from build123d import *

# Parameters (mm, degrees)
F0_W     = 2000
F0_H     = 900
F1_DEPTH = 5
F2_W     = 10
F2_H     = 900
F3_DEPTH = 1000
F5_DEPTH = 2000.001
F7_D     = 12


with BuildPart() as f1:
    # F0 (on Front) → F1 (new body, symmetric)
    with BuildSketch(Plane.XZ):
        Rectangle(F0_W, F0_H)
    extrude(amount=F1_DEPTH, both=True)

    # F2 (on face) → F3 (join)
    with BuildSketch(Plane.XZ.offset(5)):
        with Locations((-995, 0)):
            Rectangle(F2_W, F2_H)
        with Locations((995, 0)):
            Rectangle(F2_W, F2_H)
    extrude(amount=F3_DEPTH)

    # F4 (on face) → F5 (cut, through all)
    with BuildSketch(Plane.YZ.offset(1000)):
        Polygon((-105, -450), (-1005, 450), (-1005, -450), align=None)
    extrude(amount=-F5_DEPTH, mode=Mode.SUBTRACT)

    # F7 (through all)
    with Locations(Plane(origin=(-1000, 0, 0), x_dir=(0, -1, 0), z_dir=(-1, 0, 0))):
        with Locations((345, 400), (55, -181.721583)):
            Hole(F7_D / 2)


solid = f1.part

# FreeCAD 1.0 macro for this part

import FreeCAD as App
import Part
import Sketcher

doc = App.newDocument("Part")
body = doc.addObject("PartDesign::Body", "Body")

# Sketch on XZ plane
sketch1 = body.newObject("Sketcher::SketchObject", "Sketch")
sketch1.AttachmentSupport = (doc.getObject("XZ_Plane"), [""])
sketch1.MapMode = "FlatFace"
sketch1.addGeometry([
    Part.LineSegment(App.Vector(-1000, 450, 0), App.Vector(-1000, -450, 0)),
    Part.LineSegment(App.Vector(-1000, -450, 0), App.Vector(1000, -450, 0)),
    Part.LineSegment(App.Vector(1000, -450, 0), App.Vector(1000, 450, 0)),
    Part.LineSegment(App.Vector(1000, 450, 0), App.Vector(-1000, 450, 0)),
], False)
sketch1.addConstraint([
    Sketcher.Constraint("Coincident", 0, 2, 1, 1),
    Sketcher.Constraint("Coincident", 1, 2, 2, 1),
    Sketcher.Constraint("Coincident", 2, 2, 3, 1),
    Sketcher.Constraint("Coincident", 3, 2, 0, 1),
    Sketcher.Constraint("Vertical", 0),
    Sketcher.Constraint("Horizontal", 1),
    Sketcher.Constraint("Vertical", 2),
    Sketcher.Constraint("Horizontal", 3),
    Sketcher.Constraint("Symmetric", 0, 2, 2, 2, -1, 1),
    Sketcher.Constraint("DistanceX", 1, 1, 1, 2, 2000.0),
    Sketcher.Constraint("DistanceY", 0, 2, 0, 1, 900.0),
])
pad1 = body.newObject("PartDesign::Pad", "Pad")
pad1.Profile = sketch1
pad1.Length = 10
pad1.Midplane = True

# Sketch on XZ plane
sketch2 = body.newObject("Sketcher::SketchObject", "Sketch001")
sketch2.AttachmentSupport = (doc.getObject("XZ_Plane"), [""])
sketch2.MapMode = "FlatFace"
sketch2.AttachmentOffset = App.Placement(App.Vector(0, 0, 5), App.Rotation())
sketch2.addGeometry([
    Part.LineSegment(App.Vector(-1000, 450, 0), App.Vector(-1000, -450, 0)),  # 0
    Part.LineSegment(App.Vector(-1000, -450, 0), App.Vector(-990, -450, 0)),  # 1
    Part.LineSegment(App.Vector(-990, -450, 0), App.Vector(-990, 450, 0)),  # 2
    Part.LineSegment(App.Vector(-990, 450, 0), App.Vector(-1000, 450, 0)),  # 3
    Part.LineSegment(App.Vector(990, 450, 0), App.Vector(990, -450, 0)),  # 4
    Part.LineSegment(App.Vector(990, -450, 0), App.Vector(1000, -450, 0)),  # 5
    Part.LineSegment(App.Vector(1000, -450, 0), App.Vector(1000, 450, 0)),  # 6
    Part.LineSegment(App.Vector(1000, 450, 0), App.Vector(990, 450, 0)),  # 7
], False)
sketch2.addConstraint([
    Sketcher.Constraint("Coincident", 0, 2, 1, 1),
    Sketcher.Constraint("Coincident", 1, 2, 2, 1),
    Sketcher.Constraint("Coincident", 2, 2, 3, 1),
    Sketcher.Constraint("Coincident", 3, 2, 0, 1),
    Sketcher.Constraint("Coincident", 4, 2, 5, 1),
    Sketcher.Constraint("Coincident", 5, 2, 6, 1),
    Sketcher.Constraint("Coincident", 6, 2, 7, 1),
    Sketcher.Constraint("Coincident", 7, 2, 4, 1),
    Sketcher.Constraint("Vertical", 0),
    Sketcher.Constraint("Horizontal", 1),
    Sketcher.Constraint("Vertical", 2),
    Sketcher.Constraint("Horizontal", 3),
    Sketcher.Constraint("Vertical", 4),
    Sketcher.Constraint("Horizontal", 5),
    Sketcher.Constraint("Vertical", 6),
    Sketcher.Constraint("Horizontal", 7),
    Sketcher.Constraint("Symmetric", 2, 2, 4, 2, -1, 1),
    Sketcher.Constraint("Symmetric", 0, 2, 6, 2, -1, 1),
    Sketcher.Constraint("Horizontal", 1, 2, 4, 2),
    Sketcher.Constraint("DistanceX", 1, 1, 1, 2, 10.0),
    Sketcher.Constraint("DistanceY", 0, 2, 0, 1, 900.0),
    Sketcher.Constraint("DistanceX", 0, 2, -1, 1, 1000.0),
])
pad2 = body.newObject("PartDesign::Pad", "Pad001")
pad2.Profile = sketch2
pad2.Length = 1000

# Sketch on YZ plane
sketch3 = body.newObject("Sketcher::SketchObject", "Sketch002")
sketch3.AttachmentSupport = (doc.getObject("YZ_Plane"), [""])
sketch3.MapMode = "FlatFace"
sketch3.AttachmentOffset = App.Placement(App.Vector(0, 0, 1000), App.Rotation())
sketch3.addGeometry([
    Part.LineSegment(App.Vector(-105, -450, 0), App.Vector(-1005, 450, 0)),
    Part.LineSegment(App.Vector(-1005, 450, 0), App.Vector(-1005, -450, 0)),
    Part.LineSegment(App.Vector(-1005, -450, 0), App.Vector(-105, -450, 0)),
], False)
sketch3.addConstraint([
    Sketcher.Constraint("Coincident", 0, 2, 1, 1),
    Sketcher.Constraint("Coincident", 1, 2, 2, 1),
    Sketcher.Constraint("Coincident", 2, 2, 0, 1),
    Sketcher.Constraint("Vertical", 1),
    Sketcher.Constraint("Horizontal", 2),
    Sketcher.Constraint("Equal", 2, 1),
    Sketcher.Constraint("DistanceX", 2, 1, 2, 2, 900.0),
    Sketcher.Constraint("DistanceX", 0, 2, -1, 1, 1005.0),
    Sketcher.Constraint("DistanceY", -1, 1, 0, 2, 450.0),
])
pocket1 = body.newObject("PartDesign::Pocket", "Pocket")
pocket1.Profile = sketch3
pocket1.Type = "ThroughAll"

# Sketch on YZ plane
sketch4 = body.newObject("Sketcher::SketchObject", "Sketch003")
sketch4.AttachmentSupport = (doc.getObject("YZ_Plane"), [""])
sketch4.MapMode = "FlatFace"
sketch4.AttachmentOffset = App.Placement(App.Vector(0, 0, -1000), App.Rotation())
sketch4.addGeometry([
    Part.Circle(App.Vector(-345, 400, 0), App.Vector(0, 0, 1), 6),
    Part.Circle(App.Vector(-55, -181.721583, 0), App.Vector(0, 0, 1), 6),
], False)
sketch4.addConstraint([
    Sketcher.Constraint("Equal", 0, 1),
    Sketcher.Constraint("Diameter", 0, 12.0),
    Sketcher.Constraint("DistanceX", 0, 3, -1, 1, 345.0),
    Sketcher.Constraint("DistanceY", -1, 1, 0, 3, 400.0),
    Sketcher.Constraint("DistanceX", 1, 3, -1, 1, 55.0),
    Sketcher.Constraint("DistanceY", 1, 3, -1, 1, 181.721583),
])
doc.recompute()
hole = body.newObject("PartDesign::Hole", "Hole")
hole.Profile = sketch4
hole.ThreadType = "None"
hole.Diameter = 12
hole.DepthType = "ThroughAll"
hole.Reversed = True

doc.recompute()
